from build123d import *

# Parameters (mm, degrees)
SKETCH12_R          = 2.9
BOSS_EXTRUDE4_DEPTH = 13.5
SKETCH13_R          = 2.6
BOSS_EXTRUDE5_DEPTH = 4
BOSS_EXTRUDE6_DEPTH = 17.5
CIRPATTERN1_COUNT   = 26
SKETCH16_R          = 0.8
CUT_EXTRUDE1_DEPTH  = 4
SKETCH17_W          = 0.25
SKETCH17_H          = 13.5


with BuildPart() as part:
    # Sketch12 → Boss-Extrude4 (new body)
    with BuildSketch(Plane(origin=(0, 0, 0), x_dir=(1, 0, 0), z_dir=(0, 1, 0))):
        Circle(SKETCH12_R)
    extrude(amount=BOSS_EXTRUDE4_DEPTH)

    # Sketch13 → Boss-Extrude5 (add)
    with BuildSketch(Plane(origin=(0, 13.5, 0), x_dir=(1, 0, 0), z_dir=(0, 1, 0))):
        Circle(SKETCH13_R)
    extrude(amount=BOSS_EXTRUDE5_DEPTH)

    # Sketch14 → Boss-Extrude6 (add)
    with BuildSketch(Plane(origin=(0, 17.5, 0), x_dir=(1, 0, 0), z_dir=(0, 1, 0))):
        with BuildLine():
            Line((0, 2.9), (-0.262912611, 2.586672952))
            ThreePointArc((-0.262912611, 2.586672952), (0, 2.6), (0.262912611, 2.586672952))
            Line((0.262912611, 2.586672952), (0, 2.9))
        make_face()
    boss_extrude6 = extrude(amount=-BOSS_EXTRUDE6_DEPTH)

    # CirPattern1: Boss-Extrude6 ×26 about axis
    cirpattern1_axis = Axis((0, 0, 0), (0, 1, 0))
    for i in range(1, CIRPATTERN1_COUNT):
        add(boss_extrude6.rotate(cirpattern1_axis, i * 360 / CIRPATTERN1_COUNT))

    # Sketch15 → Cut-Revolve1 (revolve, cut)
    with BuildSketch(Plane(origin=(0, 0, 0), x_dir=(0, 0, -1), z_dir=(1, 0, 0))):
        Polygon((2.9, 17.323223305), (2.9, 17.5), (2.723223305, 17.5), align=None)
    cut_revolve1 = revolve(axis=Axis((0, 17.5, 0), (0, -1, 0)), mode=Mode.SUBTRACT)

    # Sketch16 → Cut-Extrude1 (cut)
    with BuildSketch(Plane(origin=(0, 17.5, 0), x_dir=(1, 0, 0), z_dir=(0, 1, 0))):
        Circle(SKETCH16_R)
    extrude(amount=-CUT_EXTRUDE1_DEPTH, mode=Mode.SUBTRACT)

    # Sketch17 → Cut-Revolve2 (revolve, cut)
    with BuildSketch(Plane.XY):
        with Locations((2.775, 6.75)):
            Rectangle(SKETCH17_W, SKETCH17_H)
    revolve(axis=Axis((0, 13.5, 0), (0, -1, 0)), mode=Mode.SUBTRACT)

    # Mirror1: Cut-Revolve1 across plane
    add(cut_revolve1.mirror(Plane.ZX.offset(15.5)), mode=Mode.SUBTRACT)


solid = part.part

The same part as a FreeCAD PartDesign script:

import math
import FreeCAD as App
import Part
import Sketcher

V = App.Vector
Q = App.Units.Quantity


def add_polygon(sketch, points):
    """Adds a closed chain of lines whose ends are joined by coincident constraints."""
    first, n = sketch.GeometryCount, len(points)
    for a, b in zip(points, points[1:] + points[:1]):
        sketch.addGeometry(Part.LineSegment(App.Vector(*a, 0), App.Vector(*b, 0)), False)
    for i in range(n):
        sketch.addConstraint(Sketcher.Constraint("Coincident", first + i, 2, first + (i + 1) % n, 1))

doc = App.newDocument("Part")
body = doc.addObject("PartDesign::Body", "Body")

sketch1 = body.newObject("Sketcher::SketchObject", "Sketch")
sketch1.AttachmentSupport = (doc.getObject("XZ_Plane"), [""])
sketch1.MapMode = "FlatFace"
sketch1.addGeometry(Part.Circle(V(0, 0, 0), V(0, 0, 1), 2.9), False)
sketch1.addConstraint([
    Sketcher.Constraint("Coincident", 0, 3, -1, 1),
    Sketcher.Constraint("Diameter", 0, 5.8),
])
pad1 = body.newObject("PartDesign::Pad", "Pad")
pad1.Profile = sketch1
pad1.Length = 13.5
pad1.Reversed = True

sketch2 = body.newObject("Sketcher::SketchObject", "Sketch001")
sketch2.AttachmentSupport = (doc.getObject("XZ_Plane"), [""])
sketch2.MapMode = "FlatFace"
sketch2.AttachmentOffset = App.Placement(V(0, 0, -13.5), App.Rotation())
sketch2.addGeometry(Part.Circle(V(0, 0, 0), V(0, 0, 1), 2.6), False)
sketch2.addConstraint([
    Sketcher.Constraint("Coincident", 0, 3, -1, 1),
    Sketcher.Constraint("Diameter", 0, 5.2),
])
pad2 = body.newObject("PartDesign::Pad", "Pad001")
pad2.Profile = sketch2
pad2.Length = 4
pad2.Reversed = True

sketch3 = body.newObject("Sketcher::SketchObject", "Sketch002")
sketch3.AttachmentSupport = (doc.getObject("XZ_Plane"), [""])
sketch3.MapMode = "FlatFace"
sketch3.AttachmentOffset = App.Placement(V(0, 0, -17.5), App.Rotation())
sketch3.addGeometry([
    Part.LineSegment(V(0, -2.9, 0), V(-0.26, -2.59, 0)),
    Part.ArcOfCircle(Part.Circle(V(0, 0, 0), V(0, 0, 1), 2.6), math.radians(-95.8), math.radians(-84.2)),
    Part.LineSegment(V(0.26, -2.59, 0), V(0, -2.9, 0)),
], False)
sketch3.addConstraint([
    Sketcher.Constraint("Coincident", 0, 2, 1, 1),
    Sketcher.Constraint("Coincident", 1, 2, 2, 1),
    Sketcher.Constraint("Coincident", 2, 2, 0, 1),
    Sketcher.Constraint("Coincident", 1, 3, -1, 1),
    Sketcher.Constraint("PointOnObject", 2, 2, -2),
    Sketcher.Constraint("Horizontal", 0, 2, 1, 2),
    Sketcher.Constraint("Radius", 1, 2.6),
    Sketcher.Constraint("Angle", 0, Q("130 deg")),
    Sketcher.Constraint("DistanceY", 2, 2, -1, 1, 2.9),
])
pad3 = body.newObject("PartDesign::Pad", "Pad002")
pad3.Profile = sketch3
pad3.Length = 17.5
doc.recompute()

polarpattern = body.newObject("PartDesign::PolarPattern", "PolarPattern")
polarpattern.Originals = [pad3]
polarpattern.Axis = (doc.getObject("Y_Axis"), [""])
polarpattern.Angle = 360
polarpattern.Occurrences = 26
body.Tip = polarpattern

sketch4 = body.newObject("Sketcher::SketchObject", "Sketch003")
sketch4.AttachmentSupport = (doc.getObject("YZ_Plane"), [""])
sketch4.MapMode = "FlatFace"
add_polygon(sketch4, [(17.32, -2.9), (17.5, -2.9), (17.5, -2.72)])
sketch4.addConstraint([
    Sketcher.Constraint("Horizontal", 0),
    Sketcher.Constraint("Vertical", 1),
    Sketcher.Constraint("Equal", 0, 1),
    Sketcher.Constraint("DistanceX", -1, 1, 0, 2, 17.5),
    Sketcher.Constraint("DistanceY", 0, 2, -1, 1, 2.9),
    Sketcher.Constraint("Distance", 2, 0.25),
])
groove = body.newObject("PartDesign::Groove", "Groove")
groove.Profile = sketch4
groove.ReferenceAxis = (sketch4, ["H_Axis"])
groove.Angle = 360

sketch5 = body.newObject("Sketcher::SketchObject", "Sketch004")
sketch5.AttachmentSupport = (doc.getObject("XZ_Plane"), [""])
sketch5.MapMode = "FlatFace"
sketch5.AttachmentOffset = App.Placement(V(0, 0, -17.5), App.Rotation())
sketch5.addGeometry(Part.Circle(V(0, 0, 0), V(0, 0, 1), 0.8), False)
sketch5.addConstraint([
    Sketcher.Constraint("Coincident", 0, 3, -1, 1),
    Sketcher.Constraint("Diameter", 0, 1.6),
])
pocket1 = body.newObject("PartDesign::Pocket", "Pocket")
pocket1.Profile = sketch5
pocket1.Length = 4
pocket1.Reversed = True

sketch6 = body.newObject("Sketcher::SketchObject", "Sketch005")
sketch6.AttachmentSupport = (doc.getObject("XY_Plane"), [""])
sketch6.MapMode = "FlatFace"
add_polygon(sketch6, [(2.65, 13.5), (2.65, 0), (2.9, 0), (2.9, 13.5)])
sketch6.addConstraint([
    Sketcher.Constraint("Vertical", 0),
    Sketcher.Constraint("Horizontal", 1),
    Sketcher.Constraint("Vertical", 2),
    Sketcher.Constraint("Horizontal", 3),
    Sketcher.Constraint("PointOnObject", 0, 2, -1),
    Sketcher.Constraint("DistanceY", 0, 2, 0, 1, 13.5),
    Sketcher.Constraint("DistanceX", 1, 1, 1, 2, 0.25),
    Sketcher.Constraint("DistanceX", -1, 1, 1, 2, 2.9),
])
groove2 = body.newObject("PartDesign::Groove", "Groove001")
groove2.Profile = sketch6
groove2.ReferenceAxis = (sketch6, ["V_Axis"])
groove2.Angle = 360
doc.recompute()

datumplane = body.newObject("PartDesign::Plane", "DatumPlane")
datumplane.AttachmentSupport = (doc.getObject("XZ_Plane"), [""])
datumplane.MapMode = "FlatFace"
datumplane.AttachmentOffset = App.Placement(V(0, 0, -15.5), App.Rotation())
mirrored = body.newObject("PartDesign::Mirrored", "Mirrored")
mirrored.Originals = [groove]
mirrored.MirrorPlane = (datumplane, [""])
body.Tip = mirrored

doc.recompute()
